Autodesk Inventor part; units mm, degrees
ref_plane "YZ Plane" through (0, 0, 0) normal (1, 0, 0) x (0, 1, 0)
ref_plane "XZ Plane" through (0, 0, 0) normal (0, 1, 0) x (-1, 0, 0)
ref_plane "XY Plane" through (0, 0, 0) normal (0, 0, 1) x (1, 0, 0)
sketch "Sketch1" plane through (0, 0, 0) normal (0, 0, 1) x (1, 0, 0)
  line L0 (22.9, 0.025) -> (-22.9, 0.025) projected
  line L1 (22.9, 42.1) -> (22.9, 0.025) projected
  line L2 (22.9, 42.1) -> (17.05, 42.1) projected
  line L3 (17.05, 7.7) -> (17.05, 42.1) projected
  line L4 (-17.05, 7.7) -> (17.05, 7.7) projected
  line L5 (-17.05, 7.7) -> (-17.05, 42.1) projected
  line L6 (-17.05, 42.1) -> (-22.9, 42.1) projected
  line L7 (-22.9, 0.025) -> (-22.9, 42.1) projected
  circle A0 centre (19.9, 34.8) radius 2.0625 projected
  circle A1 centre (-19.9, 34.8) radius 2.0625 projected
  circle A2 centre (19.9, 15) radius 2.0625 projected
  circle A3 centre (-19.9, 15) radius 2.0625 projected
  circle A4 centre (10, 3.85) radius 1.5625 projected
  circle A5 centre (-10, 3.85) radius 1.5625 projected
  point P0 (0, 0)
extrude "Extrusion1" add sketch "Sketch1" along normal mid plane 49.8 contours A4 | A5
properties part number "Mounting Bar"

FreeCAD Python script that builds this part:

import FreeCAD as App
import Part
import Sketcher
Q = App.Units.Quantity

doc = App.newDocument("Part")
params = doc.addObject("Spreadsheet::Sheet", "Params")
for row, (alias, value) in enumerate([
    ("pad1_length", "49.8 mm"),
], start=1):
    params.set(f"A{row}", alias)
    params.set(f"B{row}", "=" + value)
    params.setAlias(f"B{row}", alias)

body = doc.addObject("PartDesign::Body", "Body")
body.AllowCompound = True

# Sketch on XY plane
sketch1 = doc.addObject("Sketcher::SketchObject", "Sketch")
body.addObject(sketch1)
sketch1.AttachmentSupport = (doc.XY_Plane, [""])
sketch1.MapMode = "FlatFace"
sketch1.addGeometry([
    Part.Circle(App.Vector(10, 3.9, 0), App.Vector(0, 0, 1), 1.6),
    Part.Circle(App.Vector(-10, 3.9, 0), App.Vector(0, 0, 1), 1.6),
], False)
sketch1.addConstraint([
    Sketcher.Constraint("Equal", 0, 1),
    Sketcher.Constraint("Symmetric", 0, 3, 1, 3, -2),
    Sketcher.Constraint("Diameter", 0, Q("3.125 mm")),
    Sketcher.Constraint("DistanceX", -1, 1, 0, 3, Q("10 mm")),
    Sketcher.Constraint("DistanceY", -1, 1, 0, 3, Q("3.85 mm")),
])
pad1 = doc.addObject("PartDesign::Pad", "Pad")
body.addObject(pad1)
pad1.Profile = sketch1
pad1.setExpression("Length", "Params.pad1_length")
pad1.Midplane = True

doc.recompute()
